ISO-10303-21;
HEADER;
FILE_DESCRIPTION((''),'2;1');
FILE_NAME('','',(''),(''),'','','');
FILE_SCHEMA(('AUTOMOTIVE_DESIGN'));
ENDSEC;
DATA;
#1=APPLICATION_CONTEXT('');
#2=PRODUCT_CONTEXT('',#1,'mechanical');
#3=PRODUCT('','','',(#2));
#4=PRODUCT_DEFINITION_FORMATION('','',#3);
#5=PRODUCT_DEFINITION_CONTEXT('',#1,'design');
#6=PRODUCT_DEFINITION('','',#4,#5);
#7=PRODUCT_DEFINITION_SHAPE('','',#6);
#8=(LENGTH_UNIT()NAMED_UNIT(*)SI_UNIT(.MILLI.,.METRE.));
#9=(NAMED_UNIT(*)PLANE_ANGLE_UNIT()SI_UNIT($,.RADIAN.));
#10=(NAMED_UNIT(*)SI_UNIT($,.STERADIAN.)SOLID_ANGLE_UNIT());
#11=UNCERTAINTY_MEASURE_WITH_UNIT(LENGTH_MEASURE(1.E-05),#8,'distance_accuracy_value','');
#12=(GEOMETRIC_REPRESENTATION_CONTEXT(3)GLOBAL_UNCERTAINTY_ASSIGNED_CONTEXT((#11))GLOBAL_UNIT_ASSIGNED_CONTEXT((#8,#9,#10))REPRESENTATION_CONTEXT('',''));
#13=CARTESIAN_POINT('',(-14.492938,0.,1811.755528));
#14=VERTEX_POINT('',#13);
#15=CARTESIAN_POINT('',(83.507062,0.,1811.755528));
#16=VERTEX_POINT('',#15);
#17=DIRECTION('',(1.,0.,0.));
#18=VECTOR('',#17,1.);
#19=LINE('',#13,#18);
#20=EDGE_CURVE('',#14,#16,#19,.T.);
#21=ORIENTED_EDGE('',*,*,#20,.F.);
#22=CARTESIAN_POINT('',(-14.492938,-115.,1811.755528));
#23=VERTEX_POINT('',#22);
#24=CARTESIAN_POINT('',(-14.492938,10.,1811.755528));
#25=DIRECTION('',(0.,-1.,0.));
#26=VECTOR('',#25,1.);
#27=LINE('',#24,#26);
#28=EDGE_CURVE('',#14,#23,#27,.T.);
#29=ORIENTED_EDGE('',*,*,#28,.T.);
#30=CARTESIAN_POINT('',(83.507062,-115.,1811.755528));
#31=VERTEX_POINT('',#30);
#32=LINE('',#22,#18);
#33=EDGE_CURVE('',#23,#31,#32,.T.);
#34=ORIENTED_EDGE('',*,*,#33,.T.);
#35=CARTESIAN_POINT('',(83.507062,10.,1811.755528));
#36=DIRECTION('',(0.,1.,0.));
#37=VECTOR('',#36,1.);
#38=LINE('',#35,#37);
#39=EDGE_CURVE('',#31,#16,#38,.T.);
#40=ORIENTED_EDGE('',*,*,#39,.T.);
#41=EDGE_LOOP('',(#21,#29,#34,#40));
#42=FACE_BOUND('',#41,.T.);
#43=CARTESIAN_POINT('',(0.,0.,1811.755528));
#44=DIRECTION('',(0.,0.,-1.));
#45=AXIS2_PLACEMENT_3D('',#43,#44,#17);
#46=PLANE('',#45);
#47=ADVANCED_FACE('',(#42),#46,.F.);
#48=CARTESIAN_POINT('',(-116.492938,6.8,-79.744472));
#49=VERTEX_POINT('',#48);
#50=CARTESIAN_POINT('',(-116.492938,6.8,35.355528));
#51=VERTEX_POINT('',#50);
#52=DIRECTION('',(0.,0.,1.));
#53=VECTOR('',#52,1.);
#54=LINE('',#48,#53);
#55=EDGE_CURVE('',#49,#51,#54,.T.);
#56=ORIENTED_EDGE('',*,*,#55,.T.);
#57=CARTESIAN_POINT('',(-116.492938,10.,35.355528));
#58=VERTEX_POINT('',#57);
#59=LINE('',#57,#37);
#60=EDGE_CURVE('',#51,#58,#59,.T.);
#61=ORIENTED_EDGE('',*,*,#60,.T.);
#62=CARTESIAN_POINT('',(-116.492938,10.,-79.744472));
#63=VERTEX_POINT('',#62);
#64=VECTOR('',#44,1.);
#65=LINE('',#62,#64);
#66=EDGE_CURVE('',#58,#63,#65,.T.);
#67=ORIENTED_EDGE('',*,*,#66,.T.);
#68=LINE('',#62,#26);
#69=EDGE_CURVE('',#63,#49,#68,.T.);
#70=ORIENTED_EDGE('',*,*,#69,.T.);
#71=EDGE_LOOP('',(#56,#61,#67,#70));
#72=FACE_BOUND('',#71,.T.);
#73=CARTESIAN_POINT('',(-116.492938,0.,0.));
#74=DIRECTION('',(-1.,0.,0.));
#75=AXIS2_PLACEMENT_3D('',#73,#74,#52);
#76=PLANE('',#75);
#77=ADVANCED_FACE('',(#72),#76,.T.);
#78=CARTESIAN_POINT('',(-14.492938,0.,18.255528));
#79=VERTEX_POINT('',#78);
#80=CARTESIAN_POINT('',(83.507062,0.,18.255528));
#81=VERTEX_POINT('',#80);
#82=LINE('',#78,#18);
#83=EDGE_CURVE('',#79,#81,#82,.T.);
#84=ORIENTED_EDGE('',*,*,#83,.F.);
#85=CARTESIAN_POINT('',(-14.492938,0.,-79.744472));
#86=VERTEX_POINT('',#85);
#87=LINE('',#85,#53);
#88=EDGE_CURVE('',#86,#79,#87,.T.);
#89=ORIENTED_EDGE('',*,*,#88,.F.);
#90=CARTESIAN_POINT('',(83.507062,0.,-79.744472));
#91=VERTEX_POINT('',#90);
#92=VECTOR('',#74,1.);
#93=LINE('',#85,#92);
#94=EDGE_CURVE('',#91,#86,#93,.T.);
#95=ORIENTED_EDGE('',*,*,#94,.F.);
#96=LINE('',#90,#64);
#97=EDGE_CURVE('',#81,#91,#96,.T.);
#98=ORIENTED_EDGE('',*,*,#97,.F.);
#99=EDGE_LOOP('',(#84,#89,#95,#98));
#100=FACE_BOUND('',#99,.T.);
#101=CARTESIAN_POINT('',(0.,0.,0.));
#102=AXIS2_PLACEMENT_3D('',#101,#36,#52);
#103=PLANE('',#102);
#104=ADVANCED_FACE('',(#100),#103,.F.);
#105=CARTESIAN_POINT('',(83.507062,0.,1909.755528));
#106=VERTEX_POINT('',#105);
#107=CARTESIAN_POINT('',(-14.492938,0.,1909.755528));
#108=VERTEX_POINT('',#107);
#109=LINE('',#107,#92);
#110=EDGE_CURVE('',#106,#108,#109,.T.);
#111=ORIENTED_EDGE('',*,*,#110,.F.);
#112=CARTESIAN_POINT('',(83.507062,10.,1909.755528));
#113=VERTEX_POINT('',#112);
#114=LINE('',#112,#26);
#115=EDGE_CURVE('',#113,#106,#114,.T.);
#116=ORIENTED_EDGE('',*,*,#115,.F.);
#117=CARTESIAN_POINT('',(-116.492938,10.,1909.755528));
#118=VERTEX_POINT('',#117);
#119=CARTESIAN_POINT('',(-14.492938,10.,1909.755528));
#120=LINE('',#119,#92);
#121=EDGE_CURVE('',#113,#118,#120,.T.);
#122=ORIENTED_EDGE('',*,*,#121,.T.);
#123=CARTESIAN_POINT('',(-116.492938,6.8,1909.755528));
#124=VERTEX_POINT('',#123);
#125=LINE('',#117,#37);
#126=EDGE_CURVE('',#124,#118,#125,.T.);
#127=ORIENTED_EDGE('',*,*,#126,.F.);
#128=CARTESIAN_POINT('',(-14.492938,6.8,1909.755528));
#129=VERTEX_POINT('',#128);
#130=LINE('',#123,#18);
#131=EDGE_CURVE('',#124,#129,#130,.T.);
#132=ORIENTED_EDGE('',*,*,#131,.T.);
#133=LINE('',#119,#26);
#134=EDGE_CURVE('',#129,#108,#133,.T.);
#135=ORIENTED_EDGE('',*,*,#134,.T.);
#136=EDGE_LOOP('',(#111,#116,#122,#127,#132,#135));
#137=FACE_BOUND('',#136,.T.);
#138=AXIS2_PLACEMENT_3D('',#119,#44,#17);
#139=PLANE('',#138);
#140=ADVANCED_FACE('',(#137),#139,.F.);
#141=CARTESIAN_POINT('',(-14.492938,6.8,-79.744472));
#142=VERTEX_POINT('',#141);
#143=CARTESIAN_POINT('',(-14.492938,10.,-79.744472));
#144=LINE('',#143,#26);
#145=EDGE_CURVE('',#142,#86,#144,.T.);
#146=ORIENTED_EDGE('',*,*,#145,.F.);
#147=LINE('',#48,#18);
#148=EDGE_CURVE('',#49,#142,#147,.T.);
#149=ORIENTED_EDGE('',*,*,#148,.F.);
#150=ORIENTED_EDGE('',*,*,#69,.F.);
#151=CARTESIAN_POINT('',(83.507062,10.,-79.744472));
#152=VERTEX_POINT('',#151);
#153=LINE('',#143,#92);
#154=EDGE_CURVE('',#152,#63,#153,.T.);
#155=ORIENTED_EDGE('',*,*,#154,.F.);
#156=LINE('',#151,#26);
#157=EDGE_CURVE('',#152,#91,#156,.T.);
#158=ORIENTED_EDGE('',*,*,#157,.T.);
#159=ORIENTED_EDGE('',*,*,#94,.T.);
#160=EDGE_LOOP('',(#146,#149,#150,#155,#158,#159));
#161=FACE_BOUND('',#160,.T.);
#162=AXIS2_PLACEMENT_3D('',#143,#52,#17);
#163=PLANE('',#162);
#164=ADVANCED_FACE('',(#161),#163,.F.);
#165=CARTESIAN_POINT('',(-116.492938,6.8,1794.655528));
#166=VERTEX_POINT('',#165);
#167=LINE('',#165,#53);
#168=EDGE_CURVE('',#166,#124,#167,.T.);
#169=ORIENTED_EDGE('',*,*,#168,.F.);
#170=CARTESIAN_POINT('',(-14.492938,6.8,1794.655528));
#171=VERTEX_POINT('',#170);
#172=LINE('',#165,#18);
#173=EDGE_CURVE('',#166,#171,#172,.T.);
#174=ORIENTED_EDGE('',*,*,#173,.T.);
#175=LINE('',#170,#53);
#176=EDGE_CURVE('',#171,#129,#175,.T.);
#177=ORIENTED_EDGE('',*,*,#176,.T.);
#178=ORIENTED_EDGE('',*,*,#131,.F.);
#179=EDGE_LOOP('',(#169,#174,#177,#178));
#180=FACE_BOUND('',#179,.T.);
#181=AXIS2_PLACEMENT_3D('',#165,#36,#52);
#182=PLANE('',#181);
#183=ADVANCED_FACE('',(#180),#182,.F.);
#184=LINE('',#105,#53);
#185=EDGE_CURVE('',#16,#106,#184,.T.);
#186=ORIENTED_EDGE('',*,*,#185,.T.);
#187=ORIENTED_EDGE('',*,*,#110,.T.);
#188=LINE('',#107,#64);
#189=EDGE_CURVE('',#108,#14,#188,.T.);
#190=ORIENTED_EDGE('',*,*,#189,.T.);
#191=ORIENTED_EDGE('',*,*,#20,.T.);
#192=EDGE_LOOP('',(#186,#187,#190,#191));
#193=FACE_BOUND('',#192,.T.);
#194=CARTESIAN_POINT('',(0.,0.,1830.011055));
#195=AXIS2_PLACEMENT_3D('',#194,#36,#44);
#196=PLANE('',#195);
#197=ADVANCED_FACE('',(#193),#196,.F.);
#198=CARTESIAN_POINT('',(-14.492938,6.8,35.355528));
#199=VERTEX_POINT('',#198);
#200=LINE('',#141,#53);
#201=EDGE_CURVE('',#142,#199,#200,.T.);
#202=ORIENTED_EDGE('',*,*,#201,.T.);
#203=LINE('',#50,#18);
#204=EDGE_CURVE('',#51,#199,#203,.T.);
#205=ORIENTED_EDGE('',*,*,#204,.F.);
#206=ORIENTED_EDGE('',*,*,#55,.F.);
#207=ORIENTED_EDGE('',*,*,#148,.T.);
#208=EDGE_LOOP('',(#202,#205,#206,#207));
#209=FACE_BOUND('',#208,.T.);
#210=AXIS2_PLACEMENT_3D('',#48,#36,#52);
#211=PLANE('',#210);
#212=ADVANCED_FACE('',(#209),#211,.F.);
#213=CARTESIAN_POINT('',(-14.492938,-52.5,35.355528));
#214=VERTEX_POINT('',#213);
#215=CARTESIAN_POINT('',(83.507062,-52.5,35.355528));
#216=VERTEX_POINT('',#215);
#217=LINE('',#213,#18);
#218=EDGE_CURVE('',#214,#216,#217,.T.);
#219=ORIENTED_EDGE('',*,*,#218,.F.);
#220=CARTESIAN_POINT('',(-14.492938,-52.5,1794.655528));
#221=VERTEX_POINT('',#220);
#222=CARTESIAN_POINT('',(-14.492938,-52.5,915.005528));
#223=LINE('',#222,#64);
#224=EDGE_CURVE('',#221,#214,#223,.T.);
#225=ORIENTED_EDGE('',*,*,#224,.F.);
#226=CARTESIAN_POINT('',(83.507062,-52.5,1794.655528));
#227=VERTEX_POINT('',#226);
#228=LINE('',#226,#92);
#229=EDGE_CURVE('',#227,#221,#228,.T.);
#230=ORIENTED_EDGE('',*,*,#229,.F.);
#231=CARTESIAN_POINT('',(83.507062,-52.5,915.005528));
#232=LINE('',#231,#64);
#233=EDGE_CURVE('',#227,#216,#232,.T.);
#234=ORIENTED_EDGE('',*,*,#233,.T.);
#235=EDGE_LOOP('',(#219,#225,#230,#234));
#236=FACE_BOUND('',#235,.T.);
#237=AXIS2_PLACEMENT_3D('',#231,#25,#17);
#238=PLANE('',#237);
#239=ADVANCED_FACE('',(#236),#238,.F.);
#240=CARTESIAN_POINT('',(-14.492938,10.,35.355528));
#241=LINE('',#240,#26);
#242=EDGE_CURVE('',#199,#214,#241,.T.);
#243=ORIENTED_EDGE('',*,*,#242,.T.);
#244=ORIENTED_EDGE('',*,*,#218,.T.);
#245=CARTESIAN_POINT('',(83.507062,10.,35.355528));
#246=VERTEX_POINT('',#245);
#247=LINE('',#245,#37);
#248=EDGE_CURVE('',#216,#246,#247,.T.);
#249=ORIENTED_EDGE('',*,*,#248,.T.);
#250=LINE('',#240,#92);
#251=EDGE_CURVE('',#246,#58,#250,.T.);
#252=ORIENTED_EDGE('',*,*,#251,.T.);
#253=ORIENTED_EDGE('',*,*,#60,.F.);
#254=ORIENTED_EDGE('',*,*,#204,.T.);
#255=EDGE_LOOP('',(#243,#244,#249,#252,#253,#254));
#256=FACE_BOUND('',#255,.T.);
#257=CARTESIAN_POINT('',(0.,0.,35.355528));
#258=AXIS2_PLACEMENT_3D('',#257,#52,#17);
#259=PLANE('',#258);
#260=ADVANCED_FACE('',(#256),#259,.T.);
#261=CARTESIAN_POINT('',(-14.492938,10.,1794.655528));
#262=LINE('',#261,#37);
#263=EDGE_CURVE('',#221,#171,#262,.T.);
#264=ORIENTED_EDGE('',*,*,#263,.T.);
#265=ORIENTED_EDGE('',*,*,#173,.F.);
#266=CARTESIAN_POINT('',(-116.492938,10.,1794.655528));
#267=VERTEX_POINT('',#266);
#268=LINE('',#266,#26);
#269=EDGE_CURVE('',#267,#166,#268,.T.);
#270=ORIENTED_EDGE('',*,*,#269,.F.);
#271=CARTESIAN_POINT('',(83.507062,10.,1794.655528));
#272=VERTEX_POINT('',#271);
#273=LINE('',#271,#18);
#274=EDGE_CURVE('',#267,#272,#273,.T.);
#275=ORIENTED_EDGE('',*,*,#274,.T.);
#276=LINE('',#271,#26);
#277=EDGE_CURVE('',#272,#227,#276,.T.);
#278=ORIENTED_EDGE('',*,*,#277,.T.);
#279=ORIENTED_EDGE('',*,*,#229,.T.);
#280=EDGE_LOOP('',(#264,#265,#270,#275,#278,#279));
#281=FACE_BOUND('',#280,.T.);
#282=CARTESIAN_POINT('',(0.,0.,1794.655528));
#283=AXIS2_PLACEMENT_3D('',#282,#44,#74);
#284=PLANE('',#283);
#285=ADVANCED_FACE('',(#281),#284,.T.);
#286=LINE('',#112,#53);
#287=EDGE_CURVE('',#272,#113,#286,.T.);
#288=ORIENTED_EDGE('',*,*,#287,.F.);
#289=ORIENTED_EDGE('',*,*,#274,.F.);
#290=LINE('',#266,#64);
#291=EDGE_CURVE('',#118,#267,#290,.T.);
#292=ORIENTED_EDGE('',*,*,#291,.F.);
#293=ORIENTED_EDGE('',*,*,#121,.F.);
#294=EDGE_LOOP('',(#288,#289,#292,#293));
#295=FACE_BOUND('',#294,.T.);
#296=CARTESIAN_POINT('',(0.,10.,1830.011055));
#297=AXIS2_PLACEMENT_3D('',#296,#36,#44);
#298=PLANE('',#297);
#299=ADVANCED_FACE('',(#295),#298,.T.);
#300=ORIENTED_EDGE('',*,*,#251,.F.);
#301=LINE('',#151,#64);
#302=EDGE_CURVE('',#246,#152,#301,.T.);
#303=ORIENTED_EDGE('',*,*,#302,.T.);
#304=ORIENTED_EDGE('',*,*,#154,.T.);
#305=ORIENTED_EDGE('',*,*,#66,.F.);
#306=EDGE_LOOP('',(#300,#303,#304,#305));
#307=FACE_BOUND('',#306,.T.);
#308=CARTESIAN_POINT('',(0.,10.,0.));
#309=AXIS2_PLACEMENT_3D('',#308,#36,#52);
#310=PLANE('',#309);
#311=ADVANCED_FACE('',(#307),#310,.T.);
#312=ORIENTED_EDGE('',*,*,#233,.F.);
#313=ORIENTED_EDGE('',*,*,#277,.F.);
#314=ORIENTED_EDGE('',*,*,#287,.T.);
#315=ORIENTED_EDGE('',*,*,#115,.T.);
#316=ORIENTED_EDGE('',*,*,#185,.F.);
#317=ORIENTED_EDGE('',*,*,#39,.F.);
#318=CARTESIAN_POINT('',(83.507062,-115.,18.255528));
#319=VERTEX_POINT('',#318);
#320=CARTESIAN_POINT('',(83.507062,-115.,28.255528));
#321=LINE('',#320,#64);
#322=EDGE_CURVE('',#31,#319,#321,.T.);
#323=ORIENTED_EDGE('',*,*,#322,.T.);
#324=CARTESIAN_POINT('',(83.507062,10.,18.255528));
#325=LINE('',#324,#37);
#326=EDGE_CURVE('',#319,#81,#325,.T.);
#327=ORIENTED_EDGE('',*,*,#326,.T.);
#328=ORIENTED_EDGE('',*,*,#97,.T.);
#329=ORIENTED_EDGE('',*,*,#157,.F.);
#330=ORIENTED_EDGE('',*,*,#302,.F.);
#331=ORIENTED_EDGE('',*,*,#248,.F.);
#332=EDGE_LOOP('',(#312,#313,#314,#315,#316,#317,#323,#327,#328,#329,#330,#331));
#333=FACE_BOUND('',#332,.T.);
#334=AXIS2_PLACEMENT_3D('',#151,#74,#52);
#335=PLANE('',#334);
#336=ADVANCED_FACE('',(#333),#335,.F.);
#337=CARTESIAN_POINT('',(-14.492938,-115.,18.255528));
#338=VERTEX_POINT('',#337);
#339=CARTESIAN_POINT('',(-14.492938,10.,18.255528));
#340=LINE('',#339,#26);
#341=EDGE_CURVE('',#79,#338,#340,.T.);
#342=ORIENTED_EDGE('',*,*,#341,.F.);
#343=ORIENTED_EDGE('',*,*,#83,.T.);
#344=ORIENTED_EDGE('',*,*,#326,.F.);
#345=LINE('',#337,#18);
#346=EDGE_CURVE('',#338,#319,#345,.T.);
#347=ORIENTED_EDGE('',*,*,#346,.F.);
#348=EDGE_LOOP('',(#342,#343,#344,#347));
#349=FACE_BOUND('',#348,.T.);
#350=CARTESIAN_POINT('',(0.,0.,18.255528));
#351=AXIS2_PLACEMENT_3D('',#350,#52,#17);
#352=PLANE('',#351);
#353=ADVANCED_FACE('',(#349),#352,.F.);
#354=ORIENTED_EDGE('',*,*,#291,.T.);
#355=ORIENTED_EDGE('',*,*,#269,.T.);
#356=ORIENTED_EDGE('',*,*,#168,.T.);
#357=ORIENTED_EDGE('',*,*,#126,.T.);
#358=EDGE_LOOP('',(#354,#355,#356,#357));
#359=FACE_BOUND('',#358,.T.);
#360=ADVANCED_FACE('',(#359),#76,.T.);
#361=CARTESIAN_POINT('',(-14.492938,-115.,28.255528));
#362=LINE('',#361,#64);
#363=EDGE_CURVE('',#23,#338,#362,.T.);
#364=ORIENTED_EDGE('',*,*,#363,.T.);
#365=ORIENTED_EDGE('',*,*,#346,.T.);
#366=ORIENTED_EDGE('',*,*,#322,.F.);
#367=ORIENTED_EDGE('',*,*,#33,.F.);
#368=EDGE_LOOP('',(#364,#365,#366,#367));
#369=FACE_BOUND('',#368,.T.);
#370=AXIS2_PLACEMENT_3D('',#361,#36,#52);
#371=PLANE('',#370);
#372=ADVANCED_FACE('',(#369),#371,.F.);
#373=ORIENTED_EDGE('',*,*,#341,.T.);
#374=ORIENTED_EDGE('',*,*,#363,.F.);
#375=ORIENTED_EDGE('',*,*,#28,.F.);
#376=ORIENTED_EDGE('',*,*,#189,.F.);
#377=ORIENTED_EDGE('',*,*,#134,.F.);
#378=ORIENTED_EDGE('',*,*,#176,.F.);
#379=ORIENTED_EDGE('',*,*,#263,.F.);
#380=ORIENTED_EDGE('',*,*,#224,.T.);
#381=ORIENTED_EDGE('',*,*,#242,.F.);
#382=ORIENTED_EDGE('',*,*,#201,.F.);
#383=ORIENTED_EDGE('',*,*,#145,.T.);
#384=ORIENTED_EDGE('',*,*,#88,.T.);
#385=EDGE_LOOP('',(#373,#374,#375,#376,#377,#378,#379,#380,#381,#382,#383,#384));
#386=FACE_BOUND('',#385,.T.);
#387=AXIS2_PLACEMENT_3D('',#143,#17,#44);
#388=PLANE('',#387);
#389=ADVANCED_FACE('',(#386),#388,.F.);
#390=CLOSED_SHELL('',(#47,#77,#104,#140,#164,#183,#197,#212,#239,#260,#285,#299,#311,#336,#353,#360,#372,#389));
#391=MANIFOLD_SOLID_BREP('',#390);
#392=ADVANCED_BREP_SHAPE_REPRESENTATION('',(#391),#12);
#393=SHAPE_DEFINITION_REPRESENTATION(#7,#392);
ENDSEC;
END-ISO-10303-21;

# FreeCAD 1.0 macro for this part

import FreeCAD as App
import Part
import Sketcher

V = App.Vector
Q = App.Units.Quantity


def add_polygon(sketch, points):
    """Adds a closed chain of lines whose ends are joined by coincident constraints."""
    first, n = sketch.GeometryCount, len(points)
    for a, b in zip(points, points[1:] + points[:1]):
        sketch.addGeometry(Part.LineSegment(App.Vector(*a, 0), App.Vector(*b, 0)), False)
    for i in range(n):
        sketch.addConstraint(Sketcher.Constraint("Coincident", first + i, 2, first + (i + 1) % n, 1))

doc = App.newDocument("Part")
body = doc.addObject("PartDesign::Body", "Body")

sketch1 = body.newObject("Sketcher::SketchObject", "Sketch")
sketch1.AttachmentSupport = (doc.getObject("XZ_Plane"), [""])
sketch1.MapMode = "FlatFace"
add_polygon(sketch1, [(-14.492938, -79.744472), (-14.492938, 18.255528), (83.507062, 18.255528), (83.507062, -79.744472)])
sketch1.addConstraint(Sketcher.Constraint("Vertical", 0))
sketch1.addConstraint(Sketcher.Constraint("Horizontal", 1))
sketch1.addConstraint(Sketcher.Constraint("Vertical", 2))
sketch1.addConstraint(Sketcher.Constraint("Horizontal", 3))
sketch1.addConstraint(Sketcher.Constraint("Equal", 3, 0))
sketch1.addConstraint(Sketcher.Constraint("DistanceX", 1, 1, 1, 2, Q("98 mm")))
sketch1.addConstraint(Sketcher.Constraint("DistanceX", 0, 2, -1, 1, Q("14.492938 mm")))
sketch1.addConstraint(Sketcher.Constraint("DistanceY", -1, 1, 0, 2, Q("18.255528 mm")))
pad1 = body.newObject("PartDesign::Pad", "Pad")
pad1.Profile = sketch1
pad1.Length = 10
pad1.Reversed = True

sketch2 = body.newObject("Sketcher::SketchObject", "Sketch001")
sketch2.AttachmentSupport = (doc.getObject("XY_Plane"), [""])
sketch2.MapMode = "FlatFace"
sketch2.AttachmentOffset = App.Placement(V(0, 0, 18.255528), App.Rotation())
add_polygon(sketch2, [(-14.492938, 10), (-14.492938, -115), (83.507062, -115), (83.507062, 10)])
sketch2.addConstraint(Sketcher.Constraint("Vertical", 0))
sketch2.addConstraint(Sketcher.Constraint("Horizontal", 1))
sketch2.addConstraint(Sketcher.Constraint("Vertical", 2))
sketch2.addConstraint(Sketcher.Constraint("Horizontal", 3))
sketch2.addConstraint(Sketcher.Constraint("DistanceX", 1, 1, 1, 2, Q("98 mm")))
sketch2.addConstraint(Sketcher.Constraint("DistanceY", 0, 2, 0, 1, Q("125 mm")))
sketch2.addConstraint(Sketcher.Constraint("DistanceY", 0, 2, -1, 1, Q("115 mm")))
sketch2.addConstraint(Sketcher.Constraint("DistanceX", 0, 2, -1, 1, Q("14.492938 mm")))
pad2 = body.newObject("PartDesign::Pad", "Pad001")
pad2.Profile = sketch2
pad2.Length = 10

sketch3 = body.newObject("Sketcher::SketchObject", "Sketch002")
sketch3.AttachmentSupport = (doc.getObject("XY_Plane"), [""])
sketch3.MapMode = "FlatFace"
sketch3.AttachmentOffset = App.Placement(V(0, 0, 28.255528), App.Rotation())
add_polygon(sketch3, [(-14.492938, -52.5), (-14.492938, -115), (83.507062, -115), (83.507062, -52.5)])
sketch3.addConstraint(Sketcher.Constraint("Vertical", 0))
sketch3.addConstraint(Sketcher.Constraint("Horizontal", 1))
sketch3.addConstraint(Sketcher.Constraint("Vertical", 2))
sketch3.addConstraint(Sketcher.Constraint("Horizontal", 3))
sketch3.addConstraint(Sketcher.Constraint("DistanceX", 1, 1, 1, 2, Q("98 mm")))
sketch3.addConstraint(Sketcher.Constraint("DistanceY", 0, 2, 0, 1, Q("62.5 mm")))
sketch3.addConstraint(Sketcher.Constraint("DistanceY", 0, 2, -1, 1, Q("115 mm")))
sketch3.addConstraint(Sketcher.Constraint("DistanceX", 0, 2, -1, 1, Q("14.492938 mm")))
pad3 = body.newObject("PartDesign::Pad", "Pad002")
pad3.Profile = sketch3
pad3.Length = 886.75
body2 = doc.addObject("PartDesign::Body", "Body001")
doc.recompute()

body2.BaseFeature = body
doc.recompute()

mirroring = doc.addObject("Part::Mirroring", "Mirroring")
mirroring.Source = body
mirroring.Base = V(0, 0, 915.005528)
mirroring.Normal = V(0, 0, 1)
body3 = doc.addObject("PartDesign::Body", "Body002")
body3.BaseFeature = mirroring
boolean = body2.newObject("PartDesign::Boolean", "Boolean")
boolean.Type = "Fuse"
boolean.addObjects([body3])
doc.recompute()

sketch4 = body2.newObject("Sketcher::SketchObject", "Sketch003")
sketch4.AttachmentSupport = (doc.getObject("XY_Plane001"), [""])
sketch4.MapMode = "FlatFace"
sketch4.AttachmentOffset = App.Placement(V(0, 0, 28.255528), App.Rotation())
add_polygon(sketch4, [(-14.492938, 10), (-14.492938, -52.5), (83.507062, -52.5), (83.507062, 10)])
sketch4.addConstraint(Sketcher.Constraint("Vertical", 0))
sketch4.addConstraint(Sketcher.Constraint("Horizontal", 1))
sketch4.addConstraint(Sketcher.Constraint("Vertical", 2))
sketch4.addConstraint(Sketcher.Constraint("Horizontal", 3))
sketch4.addConstraint(Sketcher.Constraint("DistanceX", 1, 1, 1, 2, Q("98 mm")))
sketch4.addConstraint(Sketcher.Constraint("DistanceY", 0, 2, 0, 1, Q("62.5 mm")))
sketch4.addConstraint(Sketcher.Constraint("DistanceY", -1, 1, 2, 2, Q("10 mm")))
sketch4.addConstraint(Sketcher.Constraint("DistanceX", 0, 2, -1, 1, Q("14.492938 mm")))
pad4 = body2.newObject("PartDesign::Pad", "Pad003")
pad4.Profile = sketch4
pad4.Length = 7.1

sketch5 = body2.newObject("Sketcher::SketchObject", "Sketch004")
sketch5.AttachmentSupport = (doc.getObject("XY_Plane001"), [""])
sketch5.MapMode = "FlatFace"
sketch5.AttachmentOffset = App.Placement(V(0, 0, 1801.755528), App.Rotation())
add_polygon(sketch5, [(83.507062, 10), (83.507062, -52.5), (-14.492938, -52.5), (-14.492938, 10)])
sketch5.addConstraint(Sketcher.Constraint("Vertical", 0))
sketch5.addConstraint(Sketcher.Constraint("Horizontal", 1))
sketch5.addConstraint(Sketcher.Constraint("Vertical", 2))
sketch5.addConstraint(Sketcher.Constraint("Horizontal", 3))
sketch5.addConstraint(Sketcher.Constraint("DistanceX", 1, 2, 1, 1, Q("98 mm")))
sketch5.addConstraint(Sketcher.Constraint("DistanceY", 0, 2, 0, 1, Q("62.5 mm")))
sketch5.addConstraint(Sketcher.Constraint("DistanceY", -1, 1, 2, 2, Q("10 mm")))
sketch5.addConstraint(Sketcher.Constraint("DistanceX", -1, 1, 0, 2, Q("83.507062 mm")))
pad5 = body2.newObject("PartDesign::Pad", "Pad004")
pad5.Profile = sketch5
pad5.Length = 7.1
pad5.Reversed = True

sketch6 = body2.newObject("Sketcher::SketchObject", "Sketch005")
sketch6.AttachmentSupport = (doc.getObject("YZ_Plane001"), [""])
sketch6.MapMode = "FlatFace"
sketch6.AttachmentOffset = App.Placement(V(0, 0, -14.492938), App.Rotation())
add_polygon(sketch6, [(10, -79.744472), (6.8, -79.744472), (6.8, 35.355528), (10, 35.355528)])
add_polygon(sketch6, [(10, 1794.655528), (6.8, 1794.655528), (6.8, 1909.755528), (10, 1909.755528)])
sketch6.addConstraint(Sketcher.Constraint("Horizontal", 0))
sketch6.addConstraint(Sketcher.Constraint("Vertical", 1))
sketch6.addConstraint(Sketcher.Constraint("Horizontal", 2))
sketch6.addConstraint(Sketcher.Constraint("Vertical", 3))
sketch6.addConstraint(Sketcher.Constraint("Horizontal", 4))
sketch6.addConstraint(Sketcher.Constraint("Vertical", 5))
sketch6.addConstraint(Sketcher.Constraint("Horizontal", 6))
sketch6.addConstraint(Sketcher.Constraint("Vertical", 7))
sketch6.addConstraint(Sketcher.Constraint("Vertical", 1, 2, 4, 2))
sketch6.addConstraint(Sketcher.Constraint("Vertical", 3, 2, 6, 2))
sketch6.addConstraint(Sketcher.Constraint("Equal", 3, 5))
sketch6.addConstraint(Sketcher.Constraint("DistanceX", 0, 2, 0, 1, Q("3.2 mm")))
sketch6.addConstraint(Sketcher.Constraint("DistanceY", 1, 1, 1, 2, Q("115.1 mm")))
sketch6.addConstraint(Sketcher.Constraint("DistanceX", -1, 1, 2, 2, Q("10 mm")))
sketch6.addConstraint(Sketcher.Constraint("DistanceY", 1, 2, 4, 2, Q("1759.3 mm")))
sketch6.addConstraint(Sketcher.Constraint("DistanceY", 0, 2, -1, 1, Q("79.744472 mm")))
pad6 = body2.newObject("PartDesign::Pad", "Pad005")
pad6.Profile = sketch6
pad6.Length = 102
pad6.Reversed = True
mirroring.Visibility = False

doc.recompute()
